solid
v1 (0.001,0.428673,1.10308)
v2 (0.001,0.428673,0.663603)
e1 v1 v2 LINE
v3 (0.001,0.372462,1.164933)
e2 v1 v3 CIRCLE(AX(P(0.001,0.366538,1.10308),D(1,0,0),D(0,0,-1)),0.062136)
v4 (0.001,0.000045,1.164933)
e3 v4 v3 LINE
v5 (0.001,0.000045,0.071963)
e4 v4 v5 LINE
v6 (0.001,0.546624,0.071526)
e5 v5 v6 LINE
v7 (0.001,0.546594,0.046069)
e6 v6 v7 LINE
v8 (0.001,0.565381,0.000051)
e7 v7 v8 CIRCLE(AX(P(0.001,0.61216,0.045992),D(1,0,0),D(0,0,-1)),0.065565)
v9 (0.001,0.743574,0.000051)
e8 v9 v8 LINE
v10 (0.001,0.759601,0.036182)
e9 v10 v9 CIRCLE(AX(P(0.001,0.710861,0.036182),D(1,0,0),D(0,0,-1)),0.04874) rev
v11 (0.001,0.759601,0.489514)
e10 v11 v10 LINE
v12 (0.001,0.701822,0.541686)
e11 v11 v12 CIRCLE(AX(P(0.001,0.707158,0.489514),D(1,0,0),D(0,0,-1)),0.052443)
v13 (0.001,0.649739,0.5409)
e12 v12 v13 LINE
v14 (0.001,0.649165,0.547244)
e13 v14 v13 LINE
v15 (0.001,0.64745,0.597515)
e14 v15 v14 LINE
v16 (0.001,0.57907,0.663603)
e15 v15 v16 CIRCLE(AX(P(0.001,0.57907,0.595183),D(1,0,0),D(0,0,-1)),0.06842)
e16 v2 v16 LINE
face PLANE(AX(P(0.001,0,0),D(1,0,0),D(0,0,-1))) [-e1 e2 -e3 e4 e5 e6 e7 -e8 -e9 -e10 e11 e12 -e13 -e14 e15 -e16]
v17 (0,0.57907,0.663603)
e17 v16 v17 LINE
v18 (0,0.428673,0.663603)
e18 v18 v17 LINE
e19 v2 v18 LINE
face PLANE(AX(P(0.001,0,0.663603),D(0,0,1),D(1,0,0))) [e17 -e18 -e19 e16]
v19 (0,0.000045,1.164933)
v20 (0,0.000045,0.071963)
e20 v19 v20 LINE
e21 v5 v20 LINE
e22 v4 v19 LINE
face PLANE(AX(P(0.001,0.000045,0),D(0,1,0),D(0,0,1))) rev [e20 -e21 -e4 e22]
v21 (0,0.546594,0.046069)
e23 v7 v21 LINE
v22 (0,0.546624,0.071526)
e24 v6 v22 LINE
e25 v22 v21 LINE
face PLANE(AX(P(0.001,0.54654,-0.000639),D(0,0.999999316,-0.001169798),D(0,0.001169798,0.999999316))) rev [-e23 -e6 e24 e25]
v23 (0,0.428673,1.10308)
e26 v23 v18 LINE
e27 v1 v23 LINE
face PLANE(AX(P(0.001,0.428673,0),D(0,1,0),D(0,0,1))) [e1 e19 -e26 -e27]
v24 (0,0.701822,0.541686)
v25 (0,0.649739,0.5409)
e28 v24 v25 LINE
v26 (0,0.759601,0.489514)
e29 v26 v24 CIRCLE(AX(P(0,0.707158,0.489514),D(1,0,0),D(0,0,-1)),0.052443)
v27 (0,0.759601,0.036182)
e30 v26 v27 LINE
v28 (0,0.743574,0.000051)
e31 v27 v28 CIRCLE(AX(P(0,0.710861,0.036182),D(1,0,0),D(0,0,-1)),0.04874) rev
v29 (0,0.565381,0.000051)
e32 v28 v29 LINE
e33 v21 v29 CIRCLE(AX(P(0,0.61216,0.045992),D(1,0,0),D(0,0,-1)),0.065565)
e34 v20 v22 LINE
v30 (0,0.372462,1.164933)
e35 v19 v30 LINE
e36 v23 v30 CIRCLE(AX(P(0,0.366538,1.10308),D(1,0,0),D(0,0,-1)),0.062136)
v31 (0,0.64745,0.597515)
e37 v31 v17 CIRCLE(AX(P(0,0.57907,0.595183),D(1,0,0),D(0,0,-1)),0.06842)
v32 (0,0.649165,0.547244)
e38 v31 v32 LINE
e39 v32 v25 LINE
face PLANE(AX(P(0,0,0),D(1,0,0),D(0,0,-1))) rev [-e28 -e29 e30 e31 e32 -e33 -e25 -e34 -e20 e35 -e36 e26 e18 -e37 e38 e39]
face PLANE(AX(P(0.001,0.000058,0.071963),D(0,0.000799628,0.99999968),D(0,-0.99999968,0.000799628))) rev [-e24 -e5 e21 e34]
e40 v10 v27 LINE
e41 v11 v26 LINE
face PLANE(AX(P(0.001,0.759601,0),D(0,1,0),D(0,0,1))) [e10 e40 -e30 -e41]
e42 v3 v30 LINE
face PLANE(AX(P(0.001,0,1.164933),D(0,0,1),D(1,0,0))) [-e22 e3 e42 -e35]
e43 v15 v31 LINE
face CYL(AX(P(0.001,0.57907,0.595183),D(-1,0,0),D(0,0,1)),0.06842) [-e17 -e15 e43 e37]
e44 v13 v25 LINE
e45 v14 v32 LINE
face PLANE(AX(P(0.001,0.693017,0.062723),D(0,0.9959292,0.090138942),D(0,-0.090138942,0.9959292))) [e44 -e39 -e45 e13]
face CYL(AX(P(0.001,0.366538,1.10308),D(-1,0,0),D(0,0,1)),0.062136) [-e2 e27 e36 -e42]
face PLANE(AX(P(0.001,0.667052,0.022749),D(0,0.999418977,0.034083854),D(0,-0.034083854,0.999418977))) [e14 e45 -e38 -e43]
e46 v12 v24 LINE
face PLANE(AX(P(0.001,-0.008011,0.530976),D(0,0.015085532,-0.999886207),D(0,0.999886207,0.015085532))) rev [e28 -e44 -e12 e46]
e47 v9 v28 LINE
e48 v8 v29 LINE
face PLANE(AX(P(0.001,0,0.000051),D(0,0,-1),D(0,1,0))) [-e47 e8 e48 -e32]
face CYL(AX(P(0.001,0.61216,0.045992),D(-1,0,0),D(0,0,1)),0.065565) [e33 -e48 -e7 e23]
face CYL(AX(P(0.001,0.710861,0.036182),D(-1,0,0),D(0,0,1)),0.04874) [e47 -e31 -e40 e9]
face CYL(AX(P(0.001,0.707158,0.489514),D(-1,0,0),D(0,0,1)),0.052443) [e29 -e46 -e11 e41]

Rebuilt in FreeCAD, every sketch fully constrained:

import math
import FreeCAD as App
import Part
import Sketcher

doc = App.newDocument("Part")
body = doc.addObject("PartDesign::Body", "Body")

sketch1 = body.newObject("Sketcher::SketchObject", "Sketch")
sketch1.AttachmentSupport = (doc.getObject("YZ_Plane"), [""])
sketch1.MapMode = "FlatFace"
sketch1.addGeometry([
    Part.LineSegment(App.Vector(0.547, 0.072, 0), App.Vector(0.547, 0.046, 0)),
    Part.ArcOfCircle(Part.Circle(App.Vector(0.612, 0.046, 0), App.Vector(0, 0, 1), 0.066), math.radians(180), math.radians(224)),
    Part.LineSegment(App.Vector(0.565, 0, 0), App.Vector(0.744, 0, 0)),
    Part.ArcOfCircle(Part.Circle(App.Vector(0.711, 0.036, 0), App.Vector(0, 0, 1), 0.049), math.radians(-48), math.radians(0)),
    Part.LineSegment(App.Vector(0.76, 0.036, 0), App.Vector(0.76, 0.49, 0)),
    Part.ArcOfCircle(Part.Circle(App.Vector(0.707, 0.49, 0), App.Vector(0, 0, 1), 0.052), math.radians(0), math.radians(96)),
    Part.LineSegment(App.Vector(0.702, 0.542, 0), App.Vector(0.65, 0.541, 0)),
    Part.LineSegment(App.Vector(0.65, 0.541, 0), App.Vector(0.649, 0.547, 0)),
    Part.LineSegment(App.Vector(0.649, 0.547, 0), App.Vector(0.647, 0.598, 0)),
    Part.ArcOfCircle(Part.Circle(App.Vector(0.579, 0.595, 0), App.Vector(0, 0, 1), 0.068), math.radians(2), math.radians(90)),
    Part.LineSegment(App.Vector(0.579, 0.664, 0), App.Vector(0.429, 0.664, 0)),
    Part.LineSegment(App.Vector(0.429, 0.664, 0), App.Vector(0.429, 1.103, 0)),
    Part.ArcOfCircle(Part.Circle(App.Vector(0.367, 1.103, 0), App.Vector(0, 0, 1), 0.062), math.radians(0), math.radians(85)),
    Part.LineSegment(App.Vector(0.372, 1.165, 0), App.Vector(0, 1.165, 0)),
    Part.LineSegment(App.Vector(0, 1.165, 0), App.Vector(0, 0.072, 0)),
    Part.LineSegment(App.Vector(0, 0.072, 0), App.Vector(0.547, 0.072, 0)),
], False)
sketch1.addConstraint([
    Sketcher.Constraint("Tangent", 0, 2, 1, 1),
    Sketcher.Constraint("Coincident", 1, 2, 2, 1),
    Sketcher.Constraint("Coincident", 2, 2, 3, 1),
    Sketcher.Constraint("Tangent", 3, 2, 4, 1),
    Sketcher.Constraint("Tangent", 4, 2, 5, 1),
    Sketcher.Constraint("Coincident", 5, 2, 6, 1),
    Sketcher.Constraint("Coincident", 6, 2, 7, 1),
    Sketcher.Constraint("Coincident", 7, 2, 8, 1),
    Sketcher.Constraint("Tangent", 8, 2, 9, 1),
    Sketcher.Constraint("Tangent", 9, 2, 10, 1),
    Sketcher.Constraint("Coincident", 10, 2, 11, 1),
    Sketcher.Constraint("Tangent", 11, 2, 12, 1),
    Sketcher.Constraint("Coincident", 12, 2, 13, 1),
    Sketcher.Constraint("Coincident", 13, 2, 14, 1),
    Sketcher.Constraint("Coincident", 14, 2, 15, 1),
    Sketcher.Constraint("Coincident", 15, 2, 0, 1),
    Sketcher.Constraint("Horizontal", 2),
    Sketcher.Constraint("Vertical", 4),
    Sketcher.Constraint("Horizontal", 10),
    Sketcher.Constraint("Vertical", 11),
    Sketcher.Constraint("Horizontal", 13),
    Sketcher.Constraint("Vertical", 14),
    Sketcher.Constraint("Radius", 3, 0.04874),
    Sketcher.Constraint("Radius", 9, 0.06842),
    Sketcher.Constraint("Radius", 1, 0.065565),
    Sketcher.Constraint("Radius", 5, 0.052443),
    Sketcher.Constraint("Radius", 12, 0.062136),
    Sketcher.Constraint("DistanceY", 3, 3, 9, 3, 0.559001),
    Sketcher.Constraint("DistanceY", 5, 3, 8, 2, 0.108),
    Sketcher.Constraint("Distance", 8, 0.0503),
    Sketcher.Constraint("DistanceY", 14, 2, 14, 1, 1.09297),
    Sketcher.Constraint("DistanceX", -1, 1, 3, 2, 0.759601),
    Sketcher.Constraint("DistanceY", -1, 1, 6, 2, 0.5409),
    Sketcher.Constraint("DistanceX", 1, 3, 3, 3, 0.098701),
    Sketcher.Constraint("DistanceY", 3, 3, 12, 3, 1.066898),
    Sketcher.Constraint("Distance", 6, 0.052089),
    Sketcher.Constraint("Distance", 7, 0.006371),
    Sketcher.Constraint("Distance", 15, 0.546579),
    Sketcher.Constraint("DistanceX", 2, 1, 2, 2, 0.178192),
    Sketcher.Constraint("DistanceX", 10, 2, 10, 1, 0.150397),
    Sketcher.Constraint("DistanceX", 13, 2, 13, 1, 0.372417),
    Sketcher.Constraint("DistanceY", 4, 1, 4, 2, 0.453332),
    Sketcher.Constraint("DistanceX", -1, 1, 9, 3, 0.57907),
    Sketcher.Constraint("DistanceY", -1, 1, 12, 3, 1.10308),
    Sketcher.Constraint("DistanceY", -1, 1, 0, 2, 0.046069),
    Sketcher.Constraint("DistanceX", -1, 1, 1, 2, 0.565381),
    Sketcher.Constraint("Distance", 0, 0.025457),
])
pad1 = body.newObject("PartDesign::Pad", "Pad")
pad1.Profile = sketch1
pad1.Length = 0.001

doc.recompute()
